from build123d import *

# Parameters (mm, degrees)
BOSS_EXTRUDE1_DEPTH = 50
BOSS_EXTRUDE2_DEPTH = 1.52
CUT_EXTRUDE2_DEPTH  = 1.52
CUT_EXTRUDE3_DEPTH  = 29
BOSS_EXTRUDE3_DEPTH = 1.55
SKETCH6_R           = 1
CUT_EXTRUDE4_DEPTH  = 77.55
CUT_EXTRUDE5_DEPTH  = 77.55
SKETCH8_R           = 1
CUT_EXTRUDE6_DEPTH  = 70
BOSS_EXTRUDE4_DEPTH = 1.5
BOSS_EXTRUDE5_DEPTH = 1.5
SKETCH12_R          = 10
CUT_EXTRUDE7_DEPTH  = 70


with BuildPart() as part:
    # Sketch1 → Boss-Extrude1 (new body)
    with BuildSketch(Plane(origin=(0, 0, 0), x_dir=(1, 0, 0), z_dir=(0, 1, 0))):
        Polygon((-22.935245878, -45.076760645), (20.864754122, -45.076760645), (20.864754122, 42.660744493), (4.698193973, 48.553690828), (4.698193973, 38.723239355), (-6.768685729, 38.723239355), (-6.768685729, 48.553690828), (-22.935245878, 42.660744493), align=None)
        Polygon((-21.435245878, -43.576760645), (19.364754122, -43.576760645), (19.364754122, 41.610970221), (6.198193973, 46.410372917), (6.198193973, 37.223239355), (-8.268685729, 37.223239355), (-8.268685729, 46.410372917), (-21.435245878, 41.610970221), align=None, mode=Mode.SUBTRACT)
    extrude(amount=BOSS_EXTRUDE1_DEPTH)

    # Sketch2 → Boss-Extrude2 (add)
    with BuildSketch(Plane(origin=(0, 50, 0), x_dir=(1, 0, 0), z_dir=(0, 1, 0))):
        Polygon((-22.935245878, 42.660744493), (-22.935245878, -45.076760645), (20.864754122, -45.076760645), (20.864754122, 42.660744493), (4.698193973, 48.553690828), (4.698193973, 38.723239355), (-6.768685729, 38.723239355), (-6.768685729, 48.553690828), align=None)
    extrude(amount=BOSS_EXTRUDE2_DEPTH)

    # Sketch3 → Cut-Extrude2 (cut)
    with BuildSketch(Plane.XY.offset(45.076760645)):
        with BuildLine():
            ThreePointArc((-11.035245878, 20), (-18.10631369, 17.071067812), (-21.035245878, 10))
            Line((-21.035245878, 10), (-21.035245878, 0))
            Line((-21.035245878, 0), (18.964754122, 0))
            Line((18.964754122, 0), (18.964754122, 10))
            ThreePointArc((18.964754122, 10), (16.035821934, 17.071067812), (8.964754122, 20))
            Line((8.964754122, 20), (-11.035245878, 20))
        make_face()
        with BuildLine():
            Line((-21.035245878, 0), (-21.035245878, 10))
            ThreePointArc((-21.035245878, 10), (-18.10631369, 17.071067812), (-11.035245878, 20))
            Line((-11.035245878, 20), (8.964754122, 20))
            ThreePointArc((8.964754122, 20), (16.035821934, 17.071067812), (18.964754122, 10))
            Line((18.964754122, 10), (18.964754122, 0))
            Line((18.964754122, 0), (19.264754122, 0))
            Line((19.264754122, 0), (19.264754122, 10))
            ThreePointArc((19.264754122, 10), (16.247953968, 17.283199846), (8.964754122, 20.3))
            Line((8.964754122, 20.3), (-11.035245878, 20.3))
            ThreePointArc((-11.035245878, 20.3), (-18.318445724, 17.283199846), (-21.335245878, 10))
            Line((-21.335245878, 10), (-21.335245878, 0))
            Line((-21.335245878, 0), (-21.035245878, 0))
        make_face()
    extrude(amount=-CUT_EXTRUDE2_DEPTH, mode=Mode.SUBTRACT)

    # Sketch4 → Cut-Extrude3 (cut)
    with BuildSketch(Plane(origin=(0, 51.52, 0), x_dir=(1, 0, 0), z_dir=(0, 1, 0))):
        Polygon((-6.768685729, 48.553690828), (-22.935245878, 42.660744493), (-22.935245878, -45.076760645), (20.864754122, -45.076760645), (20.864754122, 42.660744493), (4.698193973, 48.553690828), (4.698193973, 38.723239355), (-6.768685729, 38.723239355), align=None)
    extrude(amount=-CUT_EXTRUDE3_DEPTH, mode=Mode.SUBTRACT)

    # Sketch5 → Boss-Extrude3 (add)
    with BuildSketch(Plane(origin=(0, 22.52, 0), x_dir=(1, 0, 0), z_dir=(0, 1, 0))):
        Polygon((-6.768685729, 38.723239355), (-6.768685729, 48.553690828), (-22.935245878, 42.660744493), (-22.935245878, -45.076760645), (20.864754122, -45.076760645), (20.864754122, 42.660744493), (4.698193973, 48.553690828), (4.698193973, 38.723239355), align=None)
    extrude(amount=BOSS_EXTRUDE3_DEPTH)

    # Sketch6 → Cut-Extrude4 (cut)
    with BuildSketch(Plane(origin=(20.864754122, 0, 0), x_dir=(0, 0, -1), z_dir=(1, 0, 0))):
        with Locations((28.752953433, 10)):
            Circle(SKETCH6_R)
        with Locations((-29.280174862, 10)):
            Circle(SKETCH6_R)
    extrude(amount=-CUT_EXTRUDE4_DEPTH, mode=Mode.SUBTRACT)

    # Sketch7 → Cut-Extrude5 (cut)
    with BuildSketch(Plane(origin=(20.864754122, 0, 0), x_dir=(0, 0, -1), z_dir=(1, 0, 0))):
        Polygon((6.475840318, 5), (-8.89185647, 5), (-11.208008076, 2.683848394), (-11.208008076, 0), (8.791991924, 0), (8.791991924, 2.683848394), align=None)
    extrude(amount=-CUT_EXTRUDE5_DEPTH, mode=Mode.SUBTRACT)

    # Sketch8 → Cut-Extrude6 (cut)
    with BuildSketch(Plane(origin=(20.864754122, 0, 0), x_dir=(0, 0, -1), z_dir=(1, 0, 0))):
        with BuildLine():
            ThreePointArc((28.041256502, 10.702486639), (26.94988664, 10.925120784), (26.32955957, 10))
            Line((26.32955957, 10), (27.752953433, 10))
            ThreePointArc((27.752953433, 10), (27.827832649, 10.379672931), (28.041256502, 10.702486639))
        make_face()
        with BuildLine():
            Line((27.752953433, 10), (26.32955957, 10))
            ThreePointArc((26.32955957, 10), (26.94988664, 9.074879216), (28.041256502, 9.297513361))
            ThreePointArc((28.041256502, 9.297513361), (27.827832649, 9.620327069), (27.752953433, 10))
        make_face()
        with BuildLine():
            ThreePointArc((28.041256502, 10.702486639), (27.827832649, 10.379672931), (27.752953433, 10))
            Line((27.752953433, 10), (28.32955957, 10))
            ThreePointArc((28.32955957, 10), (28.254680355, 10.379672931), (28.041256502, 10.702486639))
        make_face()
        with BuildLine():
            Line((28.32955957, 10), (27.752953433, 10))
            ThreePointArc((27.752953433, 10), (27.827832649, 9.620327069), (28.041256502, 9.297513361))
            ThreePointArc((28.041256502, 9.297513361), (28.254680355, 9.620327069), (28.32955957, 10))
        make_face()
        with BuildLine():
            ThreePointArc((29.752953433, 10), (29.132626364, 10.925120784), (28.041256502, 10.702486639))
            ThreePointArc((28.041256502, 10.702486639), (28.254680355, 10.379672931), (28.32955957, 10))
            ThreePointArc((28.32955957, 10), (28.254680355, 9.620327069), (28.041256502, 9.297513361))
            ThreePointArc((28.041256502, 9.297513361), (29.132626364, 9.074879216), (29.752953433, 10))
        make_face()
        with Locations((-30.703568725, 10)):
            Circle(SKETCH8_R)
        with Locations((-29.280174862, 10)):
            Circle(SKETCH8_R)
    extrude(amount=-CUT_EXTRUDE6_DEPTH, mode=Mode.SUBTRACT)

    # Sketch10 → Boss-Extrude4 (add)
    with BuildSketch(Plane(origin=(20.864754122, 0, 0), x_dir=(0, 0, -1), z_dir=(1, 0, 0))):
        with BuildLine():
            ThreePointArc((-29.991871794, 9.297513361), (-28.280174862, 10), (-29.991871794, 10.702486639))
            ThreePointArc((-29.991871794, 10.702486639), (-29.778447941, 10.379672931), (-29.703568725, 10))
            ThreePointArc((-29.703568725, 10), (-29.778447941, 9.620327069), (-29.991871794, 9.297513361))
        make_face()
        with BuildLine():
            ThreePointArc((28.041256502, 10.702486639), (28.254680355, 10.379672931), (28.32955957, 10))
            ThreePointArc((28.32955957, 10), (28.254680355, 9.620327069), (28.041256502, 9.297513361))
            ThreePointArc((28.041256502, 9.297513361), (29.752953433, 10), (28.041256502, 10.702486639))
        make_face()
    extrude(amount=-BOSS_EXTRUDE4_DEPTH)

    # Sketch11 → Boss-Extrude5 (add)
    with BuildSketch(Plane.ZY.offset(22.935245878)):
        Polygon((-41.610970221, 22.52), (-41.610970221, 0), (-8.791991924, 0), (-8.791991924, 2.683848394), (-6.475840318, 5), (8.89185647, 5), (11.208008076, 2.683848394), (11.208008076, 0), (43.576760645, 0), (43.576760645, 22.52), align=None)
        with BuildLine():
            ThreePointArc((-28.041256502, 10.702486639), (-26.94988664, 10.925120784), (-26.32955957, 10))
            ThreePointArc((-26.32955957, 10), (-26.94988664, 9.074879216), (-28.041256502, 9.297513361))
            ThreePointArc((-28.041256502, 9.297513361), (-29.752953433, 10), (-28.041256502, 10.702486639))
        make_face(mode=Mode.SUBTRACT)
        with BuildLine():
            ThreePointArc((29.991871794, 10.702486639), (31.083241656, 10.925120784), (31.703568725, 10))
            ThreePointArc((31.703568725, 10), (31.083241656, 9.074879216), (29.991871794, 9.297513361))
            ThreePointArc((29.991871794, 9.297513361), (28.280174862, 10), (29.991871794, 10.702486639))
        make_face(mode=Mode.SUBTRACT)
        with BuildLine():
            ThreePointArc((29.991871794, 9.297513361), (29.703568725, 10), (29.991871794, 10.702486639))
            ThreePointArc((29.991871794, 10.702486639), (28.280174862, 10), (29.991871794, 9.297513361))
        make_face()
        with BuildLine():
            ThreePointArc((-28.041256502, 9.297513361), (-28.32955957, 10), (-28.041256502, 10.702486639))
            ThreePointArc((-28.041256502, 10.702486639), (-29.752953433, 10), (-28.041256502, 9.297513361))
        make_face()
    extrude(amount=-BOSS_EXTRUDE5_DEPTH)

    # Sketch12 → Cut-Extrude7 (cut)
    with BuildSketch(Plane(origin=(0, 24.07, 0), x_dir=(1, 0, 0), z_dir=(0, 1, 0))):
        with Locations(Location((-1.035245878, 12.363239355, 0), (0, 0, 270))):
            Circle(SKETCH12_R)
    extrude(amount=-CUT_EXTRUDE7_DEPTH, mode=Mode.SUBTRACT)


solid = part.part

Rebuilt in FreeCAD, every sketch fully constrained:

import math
import FreeCAD as App
import Part
import Sketcher
from FreeCAD import Vector
Q = App.Units.Quantity

doc = App.newDocument("Part")
body = doc.addObject("PartDesign::Body", "Body")

# Sketch on XZ plane
sketch1 = doc.addObject("Sketcher::SketchObject", "Sketch")
body.addObject(sketch1)
sketch1.AttachmentSupport = (doc.XZ_Plane, [""])
sketch1.MapMode = "FlatFace"
sketch1.addGeometry([
    Part.LineSegment(Vector(-22.935246, 45.076761, 0), Vector(20.864754, 45.076761, 0)),  # 0
    Part.LineSegment(Vector(20.864754, 45.076761, 0), Vector(20.864754, -42.660744, 0)),  # 1
    Part.LineSegment(Vector(20.864754, -42.660744, 0), Vector(4.698194, -48.553691, 0)),  # 2
    Part.LineSegment(Vector(4.698194, -48.553691, 0), Vector(4.698194, -38.723239, 0)),  # 3
    Part.LineSegment(Vector(4.698194, -38.723239, 0), Vector(-6.768686, -38.723239, 0)),  # 4
    Part.LineSegment(Vector(-6.768686, -38.723239, 0), Vector(-6.768686, -48.553691, 0)),  # 5
    Part.LineSegment(Vector(-6.768686, -48.553691, 0), Vector(-22.935246, -42.660744, 0)),  # 6
    Part.LineSegment(Vector(-22.935246, -42.660744, 0), Vector(-22.935246, 45.076761, 0)),  # 7
    Part.LineSegment(Vector(19.364754, 43.576761, 0), Vector(-21.435246, 43.576761, 0)),  # 8
    Part.LineSegment(Vector(-21.435246, 43.576761, 0), Vector(-21.435246, -41.61097, 0)),  # 9
    Part.LineSegment(Vector(-21.435246, -41.61097, 0), Vector(-8.268686, -46.410373, 0)),  # 10
    Part.LineSegment(Vector(-8.268686, -46.410373, 0), Vector(-8.268686, -37.223239, 0)),  # 11
    Part.LineSegment(Vector(-8.268686, -37.223239, 0), Vector(6.198194, -37.223239, 0)),  # 12
    Part.LineSegment(Vector(6.198194, -37.223239, 0), Vector(6.198194, -46.410373, 0)),  # 13
    Part.LineSegment(Vector(6.198194, -46.410373, 0), Vector(19.364754, -41.61097, 0)),  # 14
    Part.LineSegment(Vector(19.364754, -41.61097, 0), Vector(19.364754, 43.576761, 0)),  # 15
], False)
sketch1.addConstraint([
    Sketcher.Constraint("Coincident", 0, 2, 1, 1),
    Sketcher.Constraint("Coincident", 1, 2, 2, 1),
    Sketcher.Constraint("Coincident", 2, 2, 3, 1),
    Sketcher.Constraint("Coincident", 3, 2, 4, 1),
    Sketcher.Constraint("Coincident", 4, 2, 5, 1),
    Sketcher.Constraint("Coincident", 5, 2, 6, 1),
    Sketcher.Constraint("Coincident", 6, 2, 7, 1),
    Sketcher.Constraint("Coincident", 7, 2, 0, 1),
    Sketcher.Constraint("Coincident", 8, 2, 9, 1),
    Sketcher.Constraint("Coincident", 9, 2, 10, 1),
    Sketcher.Constraint("Coincident", 10, 2, 11, 1),
    Sketcher.Constraint("Coincident", 11, 2, 12, 1),
    Sketcher.Constraint("Coincident", 12, 2, 13, 1),
    Sketcher.Constraint("Coincident", 13, 2, 14, 1),
    Sketcher.Constraint("Coincident", 14, 2, 15, 1),
    Sketcher.Constraint("Coincident", 15, 2, 8, 1),
    Sketcher.Constraint("Horizontal", 0),
    Sketcher.Constraint("Vertical", 1),
    Sketcher.Constraint("Vertical", 3),
    Sketcher.Constraint("Horizontal", 4),
    Sketcher.Constraint("Vertical", 5),
    Sketcher.Constraint("Vertical", 7),
    Sketcher.Constraint("Horizontal", 8),
    Sketcher.Constraint("Vertical", 9),
    Sketcher.Constraint("Vertical", 11),
    Sketcher.Constraint("Horizontal", 12),
    Sketcher.Constraint("Vertical", 13),
    Sketcher.Constraint("Vertical", 15),
    Sketcher.Constraint("Parallel", 6, 10),
    Sketcher.Constraint("Parallel", 2, 14),
    Sketcher.Constraint("Horizontal", 2, 2, 5, 2),
    Sketcher.Constraint("Horizontal", 1, 2, 6, 2),
    Sketcher.Constraint("Horizontal", 10, 2, 13, 2),
    Sketcher.Constraint("Horizontal", 9, 2, 14, 2),
    Sketcher.Constraint("Equal", 2, 6),
    Sketcher.Constraint("DistanceX", 0, 1, 0, 2, Q("43.8 mm")),
    Sketcher.Constraint("DistanceX", 8, 2, 8, 1, Q("40.8 mm")),
    Sketcher.Constraint("DistanceY", 3, 2, 0, 2, Q("83.8 mm")),
    Sketcher.Constraint("DistanceX", 7, 2, 8, 2, Q("1.5 mm")),
    Sketcher.Constraint("DistanceY", 8, 2, 7, 2, Q("1.5 mm")),
    Sketcher.Constraint("DistanceX", 10, 2, 5, 2, Q("1.5 mm")),
    Sketcher.Constraint("DistanceY", 4, 2, 11, 2, Q("1.5 mm")),
    Sketcher.Constraint("DistanceX", 4, 2, 4, 1, Q("11.46688 mm")),
    Sketcher.Constraint("DistanceY", 3, 1, 3, 2, Q("9.830451 mm")),
    Sketcher.Constraint("DistanceY", 9, 2, 9, 1, Q("85.187731 mm")),
    Sketcher.Constraint("DistanceY", 1, 2, 1, 1, Q("87.737505 mm")),
    Sketcher.Constraint("DistanceY", -1, 1, 0, 2, Q("45.076761 mm")),
    Sketcher.Constraint("DistanceX", -1, 1, 0, 2, Q("20.864754 mm")),
])
pad1 = doc.addObject("PartDesign::Pad", "Pad")
body.addObject(pad1)
pad1.Profile = sketch1
pad1.Length = 50
pad1.Reversed = True

# Sketch on XZ plane
sketch2 = doc.addObject("Sketcher::SketchObject", "Sketch001")
body.addObject(sketch2)
sketch2.AttachmentSupport = (doc.XZ_Plane, [""])
sketch2.MapMode = "FlatFace"
sketch2.AttachmentOffset = App.Placement(Vector(0, 0, -50), App.Rotation())
sketch2.addGeometry([
    Part.LineSegment(Vector(-22.935246, -42.660744, 0), Vector(-22.935246, 45.076761, 0)),  # 0
    Part.LineSegment(Vector(-22.935246, 45.076761, 0), Vector(20.864754, 45.076761, 0)),  # 1
    Part.LineSegment(Vector(20.864754, 45.076761, 0), Vector(20.864754, -42.660744, 0)),  # 2
    Part.LineSegment(Vector(20.864754, -42.660744, 0), Vector(4.698194, -48.553691, 0)),  # 3
    Part.LineSegment(Vector(4.698194, -48.553691, 0), Vector(4.698194, -38.723239, 0)),  # 4
    Part.LineSegment(Vector(4.698194, -38.723239, 0), Vector(-6.768686, -38.723239, 0)),  # 5
    Part.LineSegment(Vector(-6.768686, -38.723239, 0), Vector(-6.768686, -48.553691, 0)),  # 6
    Part.LineSegment(Vector(-6.768686, -48.553691, 0), Vector(-22.935246, -42.660744, 0)),  # 7
], False)
sketch2.addConstraint([
    Sketcher.Constraint("Coincident", 0, 2, 1, 1),
    Sketcher.Constraint("Coincident", 1, 2, 2, 1),
    Sketcher.Constraint("Coincident", 2, 2, 3, 1),
    Sketcher.Constraint("Coincident", 3, 2, 4, 1),
    Sketcher.Constraint("Coincident", 4, 2, 5, 1),
    Sketcher.Constraint("Coincident", 5, 2, 6, 1),
    Sketcher.Constraint("Coincident", 6, 2, 7, 1),
    Sketcher.Constraint("Coincident", 7, 2, 0, 1),
    Sketcher.Constraint("Vertical", 0),
    Sketcher.Constraint("Horizontal", 1),
    Sketcher.Constraint("Vertical", 2),
    Sketcher.Constraint("Vertical", 4),
    Sketcher.Constraint("Horizontal", 5),
    Sketcher.Constraint("Vertical", 6),
    Sketcher.Constraint("Horizontal", 3, 2, 6, 2),
    Sketcher.Constraint("Horizontal", 2, 2, 7, 2),
    Sketcher.Constraint("Equal", 3, 7),
    Sketcher.Constraint("DistanceX", 1, 1, 1, 2, Q("43.8 mm")),
    Sketcher.Constraint("DistanceY", 4, 2, 1, 2, Q("83.8 mm")),
    Sketcher.Constraint("DistanceX", 5, 2, 5, 1, Q("11.46688 mm")),
    Sketcher.Constraint("DistanceY", 4, 1, 4, 2, Q("9.830451 mm")),
    Sketcher.Constraint("DistanceY", 0, 1, 0, 2, Q("87.737505 mm")),
    Sketcher.Constraint("DistanceY", -1, 1, 0, 2, Q("45.076761 mm")),
    Sketcher.Constraint("DistanceX", 0, 2, -1, 1, Q("22.935246 mm")),
])
pad2 = doc.addObject("PartDesign::Pad", "Pad001")
body.addObject(pad2)
pad2.Profile = sketch2
pad2.Length = 1.52
pad2.Reversed = True

# Sketch on XY plane
sketch3 = doc.addObject("Sketcher::SketchObject", "Sketch002")
body.addObject(sketch3)
sketch3.AttachmentSupport = (doc.XY_Plane, [""])
sketch3.MapMode = "FlatFace"
sketch3.AttachmentOffset = App.Placement(Vector(0, 0, 45.076761), App.Rotation())
sketch3.addGeometry([
    Part.LineSegment(Vector(19.264754, 0, 0), Vector(19.264754, 10, 0)),  # 0
    Part.ArcOfCircle(Part.Circle(Vector(8.964754, 10, 0), Vector(0, 0, 1), 10.3), math.radians(0), math.radians(90)),  # 1
    Part.LineSegment(Vector(8.964754, 20.3, 0), Vector(-11.035246, 20.3, 0)),  # 2
    Part.ArcOfCircle(Part.Circle(Vector(-11.035246, 10, 0), Vector(0, 0, 1), 10.3), math.radians(90), math.radians(180)),  # 3
    Part.LineSegment(Vector(-21.335246, 10, 0), Vector(-21.335246, 0, 0)),  # 4
    Part.LineSegment(Vector(-21.335246, 0, 0), Vector(19.264754, 0, 0)),  # 5
], False)
sketch3.addConstraint([
    Sketcher.Constraint("Tangent", 0, 2, 1, 1),
    Sketcher.Constraint("Tangent", 1, 2, 2, 1),
    Sketcher.Constraint("Tangent", 2, 2, 3, 1),
    Sketcher.Constraint("Tangent", 3, 2, 4, 1),
    Sketcher.Constraint("Coincident", 4, 2, 5, 1),
    Sketcher.Constraint("Coincident", 5, 2, 0, 1),
    Sketcher.Constraint("Vertical", 0),
    Sketcher.Constraint("Horizontal", 2),
    Sketcher.Constraint("Vertical", 4),
    Sketcher.Constraint("Horizontal", 5),
    Sketcher.Constraint("Equal", 1, 3),
    Sketcher.Constraint("PointOnObject", 4, 2, -1),
    Sketcher.Constraint("Radius", 1, Q("10.3 mm")),
    Sketcher.Constraint("DistanceX", 2, 2, 2, 1, Q("20 mm")),
    Sketcher.Constraint("DistanceY", 0, 1, 0, 2, Q("10 mm")),
    Sketcher.Constraint("DistanceX", -1, 1, 1, 3, Q("8.964754 mm")),
])
pocket1 = doc.addObject("PartDesign::Pocket", "Pocket")
body.addObject(pocket1)
pocket1.Profile = sketch3
pocket1.Length = 1.52

# Sketch on XZ plane
sketch4 = doc.addObject("Sketcher::SketchObject", "Sketch003")
body.addObject(sketch4)
sketch4.AttachmentSupport = (doc.XZ_Plane, [""])
sketch4.MapMode = "FlatFace"
sketch4.AttachmentOffset = App.Placement(Vector(0, 0, -51.52), App.Rotation())
sketch4.addGeometry([
    Part.LineSegment(Vector(-6.768686, -48.553691, 0), Vector(-22.935246, -42.660744, 0)),  # 0
    Part.LineSegment(Vector(-22.935246, -42.660744, 0), Vector(-22.935246, 45.076761, 0)),  # 1
    Part.LineSegment(Vector(-22.935246, 45.076761, 0), Vector(20.864754, 45.076761, 0)),  # 2
    Part.LineSegment(Vector(20.864754, 45.076761, 0), Vector(20.864754, -42.660744, 0)),  # 3
    Part.LineSegment(Vector(20.864754, -42.660744, 0), Vector(4.698194, -48.553691, 0)),  # 4
    Part.LineSegment(Vector(4.698194, -48.553691, 0), Vector(4.698194, -38.723239, 0)),  # 5
    Part.LineSegment(Vector(4.698194, -38.723239, 0), Vector(-6.768686, -38.723239, 0)),  # 6
    Part.LineSegment(Vector(-6.768686, -38.723239, 0), Vector(-6.768686, -48.553691, 0)),  # 7
], False)
sketch4.addConstraint([
    Sketcher.Constraint("Coincident", 0, 2, 1, 1),
    Sketcher.Constraint("Coincident", 1, 2, 2, 1),
    Sketcher.Constraint("Coincident", 2, 2, 3, 1),
    Sketcher.Constraint("Coincident", 3, 2, 4, 1),
    Sketcher.Constraint("Coincident", 4, 2, 5, 1),
    Sketcher.Constraint("Coincident", 5, 2, 6, 1),
    Sketcher.Constraint("Coincident", 6, 2, 7, 1),
    Sketcher.Constraint("Coincident", 7, 2, 0, 1),
    Sketcher.Constraint("Vertical", 1),
    Sketcher.Constraint("Horizontal", 2),
    Sketcher.Constraint("Vertical", 3),
    Sketcher.Constraint("Vertical", 5),
    Sketcher.Constraint("Horizontal", 6),
    Sketcher.Constraint("Vertical", 7),
    Sketcher.Constraint("Horizontal", 0, 2, 3, 2),
    Sketcher.Constraint("Horizontal", 4, 2, 7, 2),
    Sketcher.Constraint("Equal", 0, 4),
    Sketcher.Constraint("DistanceX", 2, 1, 2, 2, Q("43.8 mm")),
    Sketcher.Constraint("DistanceY", 5, 2, 2, 2, Q("83.8 mm")),
    Sketcher.Constraint("DistanceX", 6, 2, 6, 1, Q("11.46688 mm")),
    Sketcher.Constraint("DistanceY", 5, 1, 5, 2, Q("9.830451 mm")),
    Sketcher.Constraint("DistanceY", 1, 1, 1, 2, Q("87.737505 mm")),
    Sketcher.Constraint("DistanceY", -1, 1, 1, 2, Q("45.076761 mm")),
    Sketcher.Constraint("DistanceX", 0, 2, -1, 1, Q("22.935246 mm")),
])
pocket2 = doc.addObject("PartDesign::Pocket", "Pocket001")
body.addObject(pocket2)
pocket2.Profile = sketch4
pocket2.Length = 29
pocket2.Reversed = True

# Sketch on XZ plane
sketch5 = doc.addObject("Sketcher::SketchObject", "Sketch004")
body.addObject(sketch5)
sketch5.AttachmentSupport = (doc.XZ_Plane, [""])
sketch5.MapMode = "FlatFace"
sketch5.AttachmentOffset = App.Placement(Vector(0, 0, -22.52), App.Rotation())
sketch5.addGeometry([
    Part.LineSegment(Vector(-6.768686, -38.723239, 0), Vector(-6.768686, -48.553691, 0)),  # 0
    Part.LineSegment(Vector(-6.768686, -48.553691, 0), Vector(-22.935246, -42.660744, 0)),  # 1
    Part.LineSegment(Vector(-22.935246, -42.660744, 0), Vector(-22.935246, 45.076761, 0)),  # 2
    Part.LineSegment(Vector(-22.935246, 45.076761, 0), Vector(20.864754, 45.076761, 0)),  # 3
    Part.LineSegment(Vector(20.864754, 45.076761, 0), Vector(20.864754, -42.660744, 0)),  # 4
    Part.LineSegment(Vector(20.864754, -42.660744, 0), Vector(4.698194, -48.553691, 0)),  # 5
    Part.LineSegment(Vector(4.698194, -48.553691, 0), Vector(4.698194, -38.723239, 0)),  # 6
    Part.LineSegment(Vector(4.698194, -38.723239, 0), Vector(-6.768686, -38.723239, 0)),  # 7
], False)
sketch5.addConstraint([
    Sketcher.Constraint("Coincident", 0, 2, 1, 1),
    Sketcher.Constraint("Coincident", 1, 2, 2, 1),
    Sketcher.Constraint("Coincident", 2, 2, 3, 1),
    Sketcher.Constraint("Coincident", 3, 2, 4, 1),
    Sketcher.Constraint("Coincident", 4, 2, 5, 1),
    Sketcher.Constraint("Coincident", 5, 2, 6, 1),
    Sketcher.Constraint("Coincident", 6, 2, 7, 1),
    Sketcher.Constraint("Coincident", 7, 2, 0, 1),
    Sketcher.Constraint("Vertical", 0),
    Sketcher.Constraint("Vertical", 2),
    Sketcher.Constraint("Horizontal", 3),
    Sketcher.Constraint("Vertical", 4),
    Sketcher.Constraint("Vertical", 6),
    Sketcher.Constraint("Horizontal", 7),
    Sketcher.Constraint("Horizontal", 1, 2, 4, 2),
    Sketcher.Constraint("Horizontal", 0, 2, 5, 2),
    Sketcher.Constraint("Equal", 1, 5),
    Sketcher.Constraint("DistanceX", 3, 1, 3, 2, Q("43.8 mm")),
    Sketcher.Constraint("DistanceY", 6, 2, 3, 2, Q("83.8 mm")),
    Sketcher.Constraint("DistanceX", 7, 2, 7, 1, Q("11.46688 mm")),
    Sketcher.Constraint("DistanceY", 0, 2, 0, 1, Q("9.830451 mm")),
    Sketcher.Constraint("DistanceY", 2, 1, 2, 2, Q("87.737505 mm")),
    Sketcher.Constraint("DistanceY", 0, 2, -1, 1, Q("48.553691 mm")),
    Sketcher.Constraint("DistanceX", 0, 2, -1, 1, Q("6.768686 mm")),
])
pad3 = doc.addObject("PartDesign::Pad", "Pad002")
body.addObject(pad3)
pad3.Profile = sketch5
pad3.Length = 1.55
pad3.Reversed = True

# Sketch on YZ plane
sketch6 = doc.addObject("Sketcher::SketchObject", "Sketch005")
body.addObject(sketch6)
sketch6.AttachmentSupport = (doc.YZ_Plane, [""])
sketch6.MapMode = "FlatFace"
sketch6.AttachmentOffset = App.Placement(Vector(0, 0, 20.864754), App.Rotation())
sketch6.addGeometry([
    Part.Circle(Vector(10, -28.752953, 0), Vector(0, 0, 1), 1),
    Part.Circle(Vector(10, 29.280175, 0), Vector(0, 0, 1), 1),
], False)
sketch6.addConstraint([
    Sketcher.Constraint("Equal", 0, 1),
    Sketcher.Constraint("Vertical", 0, 3, 1, 3),
    Sketcher.Constraint("Diameter", 0, Q("2 mm")),
    Sketcher.Constraint("DistanceX", -1, 1, 0, 3, Q("10 mm")),
    Sketcher.Constraint("DistanceY", 0, 3, 1, 3, Q("58.033128 mm")),
    Sketcher.Constraint("DistanceY", 0, 3, -1, 1, Q("28.752953 mm")),
])
pocket3 = doc.addObject("PartDesign::Pocket", "Pocket002")
body.addObject(pocket3)
pocket3.Profile = sketch6
pocket3.Length = 77.55

# Sketch on YZ plane
sketch7 = doc.addObject("Sketcher::SketchObject", "Sketch006")
body.addObject(sketch7)
sketch7.AttachmentSupport = (doc.YZ_Plane, [""])
sketch7.MapMode = "FlatFace"
sketch7.AttachmentOffset = App.Placement(Vector(0, 0, 20.864754), App.Rotation())
sketch7.addGeometry([
    Part.LineSegment(Vector(5, -6.47584, 0), Vector(5, 8.891856, 0)),  # 0
    Part.LineSegment(Vector(5, 8.891856, 0), Vector(2.683848, 11.208008, 0)),  # 1
    Part.LineSegment(Vector(2.683848, 11.208008, 0), Vector(0, 11.208008, 0)),  # 2
    Part.LineSegment(Vector(0, 11.208008, 0), Vector(0, -8.791992, 0)),  # 3
    Part.LineSegment(Vector(0, -8.791992, 0), Vector(2.683848, -8.791992, 0)),  # 4
    Part.LineSegment(Vector(2.683848, -8.791992, 0), Vector(5, -6.47584, 0)),  # 5
], False)
sketch7.addConstraint([
    Sketcher.Constraint("Coincident", 0, 2, 1, 1),
    Sketcher.Constraint("Coincident", 1, 2, 2, 1),
    Sketcher.Constraint("Coincident", 2, 2, 3, 1),
    Sketcher.Constraint("Coincident", 3, 2, 4, 1),
    Sketcher.Constraint("Coincident", 4, 2, 5, 1),
    Sketcher.Constraint("Coincident", 5, 2, 0, 1),
    Sketcher.Constraint("Vertical", 0),
    Sketcher.Constraint("Horizontal", 2),
    Sketcher.Constraint("Vertical", 3),
    Sketcher.Constraint("Horizontal", 4),
    Sketcher.Constraint("PointOnObject", 2, 2, -2),
    Sketcher.Constraint("Perpendicular", 1, 5),
    Sketcher.Constraint("Vertical", 1, 2, 4, 2),
    Sketcher.Constraint("Equal", 1, 5),
    Sketcher.Constraint("DistanceY", 3, 2, 3, 1, Q("20 mm")),
    Sketcher.Constraint("DistanceX", -1, 1, 0, 2, Q("5 mm")),
    Sketcher.Constraint("DistanceX", 2, 2, 2, 1, Q("2.683848 mm")),
    Sketcher.Constraint("DistanceY", -1, 1, 1, 2, Q("11.208008 mm")),
])
pocket4 = doc.addObject("PartDesign::Pocket", "Pocket003")
body.addObject(pocket4)
pocket4.Profile = sketch7
pocket4.Length = 77.55

# Sketch on YZ plane
sketch8 = doc.addObject("Sketcher::SketchObject", "Sketch007")
body.addObject(sketch8)
sketch8.AttachmentSupport = (doc.YZ_Plane, [""])
sketch8.MapMode = "FlatFace"
sketch8.AttachmentOffset = App.Placement(Vector(0, 0, 20.864754), App.Rotation())
sketch8.addGeometry([
    Part.ArcOfCircle(Part.Circle(Vector(10, -27.32956, 0), Vector(0, 0, 1), 1), math.radians(-45.373151), math.radians(90)),  # 0
    Part.ArcOfCircle(Part.Circle(Vector(10, -27.32956, 0), Vector(0, 0, 1), 1), math.radians(90), math.radians(225.373151)),  # 1
    Part.ArcOfCircle(Part.Circle(Vector(10, -28.752953, 0), Vector(0, 0, 1), 1), math.radians(134.626849), math.radians(270)),  # 2
    Part.ArcOfCircle(Part.Circle(Vector(10, -28.752953, 0), Vector(0, 0, 1), 1), math.radians(-90), math.radians(45.373151)),  # 3
    Part.ArcOfCircle(Part.Circle(Vector(10, 29.280175, 0), Vector(0, 0, 1), 1), math.radians(134.626849), math.radians(405.373151)),  # 4
    Part.ArcOfCircle(Part.Circle(Vector(10, 30.703569, 0), Vector(0, 0, 1), 1), math.radians(-45.373151), math.radians(225.373151)),  # 5
], False)
sketch8.addConstraint([
    Sketcher.Constraint("Tangent", 0, 2, 1, 1),
    Sketcher.Constraint("Coincident", 1, 2, 2, 1),
    Sketcher.Constraint("Tangent", 2, 2, 3, 1),
    Sketcher.Constraint("Coincident", 3, 2, 0, 1),
    Sketcher.Constraint("Coincident", 4, 1, 5, 2),
    Sketcher.Constraint("Coincident", 5, 1, 4, 2),
    Sketcher.Constraint("Equal", 0, 1),
    Sketcher.Constraint("Equal", 1, 2),
    Sketcher.Constraint("Equal", 2, 3),
    Sketcher.Constraint("Equal", 3, 4),
    Sketcher.Constraint("Equal", 4, 5),
    Sketcher.Constraint("Horizontal", 1, 2, 3, 2),
    Sketcher.Constraint("Horizontal", 4, 1, 5, 1),
    Sketcher.Constraint("Vertical", 3, 3, 4, 3),
    Sketcher.Constraint("Vertical", 5, 3, 0, 2),
    Sketcher.Constraint("Vertical", 0, 2, 2, 2),
    Sketcher.Constraint("Vertical", 1, 2, 4, 1),
    Sketcher.Constraint("Radius", 0, Q("1 mm")),
    Sketcher.Constraint("DistanceX", -1, 1, 0, 3, Q("10 mm")),
    Sketcher.Constraint("DistanceY", 0, 3, -1, 1, Q("27.32956 mm")),
    Sketcher.Constraint("DistanceY", -1, 1, 5, 3, Q("30.703569 mm")),
    Sketcher.Constraint("DistanceY", -1, 1, 4, 1, Q("29.991872 mm")),
])
pocket5 = doc.addObject("PartDesign::Pocket", "Pocket004")
body.addObject(pocket5)
pocket5.Profile = sketch8
pocket5.Length = 70

# Sketch on YZ plane
sketch9 = doc.addObject("Sketcher::SketchObject", "Sketch008")
body.addObject(sketch9)
sketch9.AttachmentSupport = (doc.YZ_Plane, [""])
sketch9.MapMode = "FlatFace"
sketch9.AttachmentOffset = App.Placement(Vector(0, 0, 20.864754), App.Rotation())
sketch9.addGeometry([
    Part.ArcOfCircle(Part.Circle(Vector(10, 29.280175, 0), Vector(0, 0, 1), 1), math.radians(134.626849), math.radians(405.373151)),  # 0
    Part.ArcOfCircle(Part.Circle(Vector(10, 30.703569, 0), Vector(0, 0, 1), 1), math.radians(-90), math.radians(-45.373151)),  # 1
    Part.ArcOfCircle(Part.Circle(Vector(10, 30.703569, 0), Vector(0, 0, 1), 1), math.radians(-134.626849), math.radians(-90)),  # 2
    Part.ArcOfCircle(Part.Circle(Vector(10, -27.32956, 0), Vector(0, 0, 1), 1), math.radians(-90), math.radians(-45.373151)),  # 3
    Part.ArcOfCircle(Part.Circle(Vector(10, -27.32956, 0), Vector(0, 0, 1), 1), math.radians(-134.626849), math.radians(-90)),  # 4
    Part.ArcOfCircle(Part.Circle(Vector(10, -28.752953, 0), Vector(0, 0, 1), 1), math.radians(134.626849), math.radians(405.373151)),  # 5
], False)
sketch9.addConstraint([
    Sketcher.Constraint("Coincident", 0, 2, 1, 2),
    Sketcher.Constraint("Tangent", 1, 1, 2, 2),
    Sketcher.Constraint("Coincident", 2, 1, 0, 1),
    Sketcher.Constraint("Tangent", 3, 1, 4, 2),
    Sketcher.Constraint("Coincident", 4, 1, 5, 1),
    Sketcher.Constraint("Coincident", 5, 2, 3, 2),
    Sketcher.Constraint("Equal", 0, 1),
    Sketcher.Constraint("Equal", 1, 2),
    Sketcher.Constraint("Equal", 2, 3),
    Sketcher.Constraint("Equal", 3, 4),
    Sketcher.Constraint("Equal", 4, 5),
    Sketcher.Constraint("Horizontal", 0, 2, 2, 1),
    Sketcher.Constraint("Horizontal", 4, 1, 5, 2),
    Sketcher.Constraint("Vertical", 2, 3, 3, 3),
    Sketcher.Constraint("Vertical", 5, 3, 1, 1),
    Sketcher.Constraint("Vertical", 1, 1, 3, 1),
    Sketcher.Constraint("Vertical", 2, 1, 4, 1),
    Sketcher.Constraint("Radius", 0, Q("1 mm")),
    Sketcher.Constraint("DistanceX", -1, 1, 0, 3, Q("10 mm")),
    Sketcher.Constraint("DistanceY", -1, 1, 1, 3, Q("30.703569 mm")),
    Sketcher.Constraint("DistanceY", 3, 3, -1, 1, Q("27.32956 mm")),
    Sketcher.Constraint("DistanceY", -1, 1, 0, 2, Q("29.991872 mm")),
])
pad4 = doc.addObject("PartDesign::Pad", "Pad003")
body.addObject(pad4)
pad4.Profile = sketch9
pad4.Length = 1.5
pad4.Reversed = True

# Sketch on YZ plane
sketch10 = doc.addObject("Sketcher::SketchObject", "Sketch009")
body.addObject(sketch10)
sketch10.AttachmentSupport = (doc.YZ_Plane, [""])
sketch10.MapMode = "FlatFace"
sketch10.AttachmentOffset = App.Placement(Vector(0, 0, -22.935246), App.Rotation())
sketch10.addGeometry([
    Part.LineSegment(Vector(22.52, -41.61097, 0), Vector(0, -41.61097, 0)),  # 0
    Part.LineSegment(Vector(0, -41.61097, 0), Vector(0, -8.791992, 0)),  # 1
    Part.LineSegment(Vector(0, -8.791992, 0), Vector(2.683848, -8.791992, 0)),  # 2
    Part.LineSegment(Vector(2.683848, -8.791992, 0), Vector(5, -6.47584, 0)),  # 3
    Part.LineSegment(Vector(5, -6.47584, 0), Vector(5, 8.891856, 0)),  # 4
    Part.LineSegment(Vector(5, 8.891856, 0), Vector(2.683848, 11.208008, 0)),  # 5
    Part.LineSegment(Vector(2.683848, 11.208008, 0), Vector(0, 11.208008, 0)),  # 6
    Part.LineSegment(Vector(0, 11.208008, 0), Vector(0, 43.576761, 0)),  # 7
    Part.LineSegment(Vector(0, 43.576761, 0), Vector(22.52, 43.576761, 0)),  # 8
    Part.LineSegment(Vector(22.52, 43.576761, 0), Vector(22.52, -41.61097, 0)),  # 9
    Part.ArcOfCircle(Part.Circle(Vector(10, -27.32956, 0), Vector(0, 0, 1), 1), math.radians(-45.373151), math.radians(90)),  # 10
    Part.ArcOfCircle(Part.Circle(Vector(10, -27.32956, 0), Vector(0, 0, 1), 1), math.radians(90), math.radians(225.373151)),  # 11
    Part.ArcOfCircle(Part.Circle(Vector(10, -27.32956, 0), Vector(0, 0, 1), 1), math.radians(-134.626849), math.radians(-45.373151)),  # 12
    Part.ArcOfCircle(Part.Circle(Vector(10, 30.703569, 0), Vector(0, 0, 1), 1), math.radians(90), math.radians(225.373151)),  # 13
    Part.ArcOfCircle(Part.Circle(Vector(10, 30.703569, 0), Vector(0, 0, 1), 1), math.radians(-134.626849), math.radians(-45.373151)),  # 14
    Part.ArcOfCircle(Part.Circle(Vector(10, 30.703569, 0), Vector(0, 0, 1), 1), math.radians(-45.373151), math.radians(90)),  # 15
], False)
sketch10.addConstraint([
    Sketcher.Constraint("Coincident", 0, 2, 1, 1),
    Sketcher.Constraint("Coincident", 1, 2, 2, 1),
    Sketcher.Constraint("Coincident", 2, 2, 3, 1),
    Sketcher.Constraint("Coincident", 3, 2, 4, 1),
    Sketcher.Constraint("Coincident", 4, 2, 5, 1),
    Sketcher.Constraint("Coincident", 5, 2, 6, 1),
    Sketcher.Constraint("Coincident", 6, 2, 7, 1),
    Sketcher.Constraint("Coincident", 7, 2, 8, 1),
    Sketcher.Constraint("Coincident", 8, 2, 9, 1),
    Sketcher.Constraint("Coincident", 9, 2, 0, 1),
    Sketcher.Constraint("Tangent", 10, 2, 11, 1),
    Sketcher.Constraint("Tangent", 11, 2, 12, 1),
    Sketcher.Constraint("Tangent", 12, 2, 10, 1),
    Sketcher.Constraint("Tangent", 13, 2, 14, 1),
    Sketcher.Constraint("Tangent", 14, 2, 15, 1),
    Sketcher.Constraint("Tangent", 15, 2, 13, 1),
    Sketcher.Constraint("Horizontal", 0),
    Sketcher.Constraint("Vertical", 1),
    Sketcher.Constraint("Horizontal", 2),
    Sketcher.Constraint("Vertical", 4),
    Sketcher.Constraint("Horizontal", 6),
    Sketcher.Constraint("Vertical", 7),
    Sketcher.Constraint("Horizontal", 8),
    Sketcher.Constraint("Vertical", 9),
    Sketcher.Constraint("Equal", 12, 13),
    Sketcher.Constraint("PointOnObject", 0, 2, -2),
    Sketcher.Constraint("PointOnObject", 6, 2, -2),
    Sketcher.Constraint("Perpendicular", 3, 5),
    Sketcher.Constraint("Horizontal", 11, 2, 12, 2),
    Sketcher.Constraint("Horizontal", 13, 2, 14, 2),
    Sketcher.Constraint("Vertical", 12, 3, 13, 3),
    Sketcher.Constraint("Vertical", 2, 2, 5, 2),
    Sketcher.Constraint("Vertical", 15, 3, 10, 2),
    Sketcher.Constraint("Vertical", 11, 2, 13, 2),
    Sketcher.Constraint("Vertical", 10, 2, 15, 2),
    Sketcher.Constraint("Equal", 3, 5),
    Sketcher.Constraint("Radius", 10, Q("1 mm")),
    Sketcher.Constraint("DistanceX", -1, 1, 10, 3, Q("10 mm")),
    Sketcher.Constraint("DistanceX", -1, 1, 3, 2, Q("5 mm")),
    Sketcher.Constraint("DistanceY", 2, 2, 5, 2, Q("20 mm")),
    Sketcher.Constraint("DistanceX", 0, 2, 0, 1, Q("22.52 mm")),
    Sketcher.Constraint("DistanceX", 2, 1, 2, 2, Q("2.683848 mm")),
    Sketcher.Constraint("DistanceY", 1, 1, 1, 2, Q("32.818978 mm")),
    Sketcher.Constraint("DistanceY", 9, 2, 9, 1, Q("85.187731 mm")),
    Sketcher.Constraint("DistanceY", 10, 3, -1, 1, Q("27.32956 mm")),
    Sketcher.Constraint("DistanceY", -1, 1, 13, 3, Q("30.703569 mm")),
    Sketcher.Constraint("DistanceY", 0, 2, -1, 1, Q("41.61097 mm")),
    Sketcher.Constraint("DistanceY", -1, 1, 13, 2, Q("29.991872 mm")),
])
pad5 = doc.addObject("PartDesign::Pad", "Pad004")
body.addObject(pad5)
pad5.Profile = sketch10
pad5.Length = 1.5

# Sketch on XZ plane
sketch11 = doc.addObject("Sketcher::SketchObject", "Sketch010")
body.addObject(sketch11)
sketch11.AttachmentSupport = (doc.XZ_Plane, [""])
sketch11.MapMode = "FlatFace"
sketch11.AttachmentOffset = App.Placement(Vector(0, 0, -24.07), App.Rotation())
sketch11.addGeometry(Part.Circle(Vector(-1.035246, -12.363239, 0), Vector(0, 0, 1), 10), False)
sketch11.addConstraint([
    Sketcher.Constraint("Diameter", 0, Q("20 mm")),
    Sketcher.Constraint("DistanceY", 0, 3, -1, 1, Q("12.363239 mm")),
    Sketcher.Constraint("DistanceX", 0, 3, -1, 1, Q("1.035246 mm")),
])
pocket6 = doc.addObject("PartDesign::Pocket", "Pocket005")
body.addObject(pocket6)
pocket6.Profile = sketch11
pocket6.Length = 70
pocket6.Reversed = True

doc.recompute()
